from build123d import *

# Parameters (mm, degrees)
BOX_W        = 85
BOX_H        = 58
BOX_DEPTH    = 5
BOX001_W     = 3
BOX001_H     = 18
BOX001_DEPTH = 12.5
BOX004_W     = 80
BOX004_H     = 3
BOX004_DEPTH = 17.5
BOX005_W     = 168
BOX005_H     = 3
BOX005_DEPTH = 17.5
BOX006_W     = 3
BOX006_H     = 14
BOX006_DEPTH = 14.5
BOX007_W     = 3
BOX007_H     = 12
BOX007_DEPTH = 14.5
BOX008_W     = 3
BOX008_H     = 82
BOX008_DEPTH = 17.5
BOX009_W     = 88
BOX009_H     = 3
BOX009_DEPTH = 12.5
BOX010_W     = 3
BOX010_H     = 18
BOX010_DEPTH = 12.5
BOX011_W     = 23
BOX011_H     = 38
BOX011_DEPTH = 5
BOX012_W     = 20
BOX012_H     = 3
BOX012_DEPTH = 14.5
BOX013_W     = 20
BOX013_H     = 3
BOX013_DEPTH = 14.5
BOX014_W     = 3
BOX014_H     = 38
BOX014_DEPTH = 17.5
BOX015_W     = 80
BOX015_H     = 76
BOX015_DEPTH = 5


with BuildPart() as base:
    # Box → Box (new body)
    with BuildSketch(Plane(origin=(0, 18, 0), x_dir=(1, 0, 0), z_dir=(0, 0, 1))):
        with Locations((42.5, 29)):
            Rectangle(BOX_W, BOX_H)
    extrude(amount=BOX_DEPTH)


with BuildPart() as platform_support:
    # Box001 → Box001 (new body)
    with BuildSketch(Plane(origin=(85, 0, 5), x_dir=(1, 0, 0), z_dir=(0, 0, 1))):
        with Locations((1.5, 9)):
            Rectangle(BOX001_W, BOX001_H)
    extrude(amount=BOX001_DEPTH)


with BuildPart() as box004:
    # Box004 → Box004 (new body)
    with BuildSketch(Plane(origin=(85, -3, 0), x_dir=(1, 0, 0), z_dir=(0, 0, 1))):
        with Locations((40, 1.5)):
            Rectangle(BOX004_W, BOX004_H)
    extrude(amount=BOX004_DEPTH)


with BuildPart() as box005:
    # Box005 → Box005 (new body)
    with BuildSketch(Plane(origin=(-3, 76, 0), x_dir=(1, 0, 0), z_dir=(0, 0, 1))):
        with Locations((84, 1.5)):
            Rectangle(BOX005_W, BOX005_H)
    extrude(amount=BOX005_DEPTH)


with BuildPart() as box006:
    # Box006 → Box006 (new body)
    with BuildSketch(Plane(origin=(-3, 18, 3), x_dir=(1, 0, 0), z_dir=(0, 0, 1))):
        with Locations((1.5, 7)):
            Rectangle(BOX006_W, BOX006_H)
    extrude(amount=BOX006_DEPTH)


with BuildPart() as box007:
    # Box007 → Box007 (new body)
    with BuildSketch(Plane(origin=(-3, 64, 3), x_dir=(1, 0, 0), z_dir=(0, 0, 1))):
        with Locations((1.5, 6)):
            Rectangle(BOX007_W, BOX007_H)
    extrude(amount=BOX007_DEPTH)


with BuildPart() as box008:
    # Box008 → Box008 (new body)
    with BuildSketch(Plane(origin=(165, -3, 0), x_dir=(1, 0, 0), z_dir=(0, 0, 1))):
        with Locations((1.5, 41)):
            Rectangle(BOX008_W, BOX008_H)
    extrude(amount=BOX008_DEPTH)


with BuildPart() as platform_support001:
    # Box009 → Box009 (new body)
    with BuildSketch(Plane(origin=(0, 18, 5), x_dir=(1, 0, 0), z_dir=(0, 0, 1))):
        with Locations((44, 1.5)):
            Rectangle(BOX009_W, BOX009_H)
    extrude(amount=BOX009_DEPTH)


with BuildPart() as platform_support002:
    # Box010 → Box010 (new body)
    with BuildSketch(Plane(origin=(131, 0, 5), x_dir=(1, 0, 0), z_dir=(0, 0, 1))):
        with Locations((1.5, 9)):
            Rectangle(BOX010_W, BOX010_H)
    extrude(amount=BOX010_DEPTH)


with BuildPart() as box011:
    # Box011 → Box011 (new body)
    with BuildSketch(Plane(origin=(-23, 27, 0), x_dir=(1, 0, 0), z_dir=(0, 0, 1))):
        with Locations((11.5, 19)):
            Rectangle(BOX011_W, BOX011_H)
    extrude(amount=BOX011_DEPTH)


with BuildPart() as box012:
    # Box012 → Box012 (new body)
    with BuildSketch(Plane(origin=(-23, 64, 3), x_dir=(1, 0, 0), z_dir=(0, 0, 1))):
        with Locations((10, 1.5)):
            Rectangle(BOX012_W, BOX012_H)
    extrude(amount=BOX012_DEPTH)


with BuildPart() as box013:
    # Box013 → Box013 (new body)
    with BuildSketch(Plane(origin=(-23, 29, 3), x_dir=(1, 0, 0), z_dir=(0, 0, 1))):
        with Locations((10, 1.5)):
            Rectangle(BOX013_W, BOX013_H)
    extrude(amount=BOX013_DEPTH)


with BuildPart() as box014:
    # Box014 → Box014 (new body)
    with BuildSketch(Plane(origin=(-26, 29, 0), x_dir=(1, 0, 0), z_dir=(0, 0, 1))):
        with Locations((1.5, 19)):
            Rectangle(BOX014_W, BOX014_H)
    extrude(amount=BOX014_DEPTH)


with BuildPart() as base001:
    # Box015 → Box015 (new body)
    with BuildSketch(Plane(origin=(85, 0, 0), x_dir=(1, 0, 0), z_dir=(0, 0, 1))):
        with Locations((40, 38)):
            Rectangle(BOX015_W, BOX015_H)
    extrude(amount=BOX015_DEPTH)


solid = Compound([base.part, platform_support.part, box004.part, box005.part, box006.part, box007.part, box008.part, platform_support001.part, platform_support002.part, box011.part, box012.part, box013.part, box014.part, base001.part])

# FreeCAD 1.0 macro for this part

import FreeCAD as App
import Part
import Sketcher
Q = App.Units.Quantity


def add_polygon(sketch, points):
    """Adds a closed chain of lines whose ends are joined by coincident constraints."""
    first, n = sketch.GeometryCount, len(points)
    for a, b in zip(points, points[1:] + points[:1]):
        sketch.addGeometry(Part.LineSegment(App.Vector(*a, 0), App.Vector(*b, 0)), False)
    for i in range(n):
        sketch.addConstraint(Sketcher.Constraint("Coincident", first + i, 2, first + (i + 1) % n, 1))

doc = App.newDocument("Part")
params = doc.addObject("Spreadsheet::Sheet", "Params")
for row, (alias, value) in enumerate([
    ("sketch1_width", "85 mm"),
    ("sketch1_height", "58 mm"),
    ("pad1_length", "5 mm"),
    ("sketch2_width", "3 mm"),
    ("sketch2_height", "18 mm"),
    ("pad2_length", "12.5 mm"),
    ("sketch3_width", "80 mm"),
    ("sketch3_height", "3 mm"),
    ("pad3_length", "17.5 mm"),
    ("sketch4_width", "168 mm"),
    ("sketch4_height", "3 mm"),
    ("pad4_length", "17.5 mm"),
    ("sketch5_width", "3 mm"),
    ("sketch5_height", "14 mm"),
    ("pad5_length", "14.5 mm"),
    ("sketch6_width", "3 mm"),
    ("sketch6_height", "12 mm"),
    ("pad6_length", "14.5 mm"),
    ("sketch7_width", "3 mm"),
    ("sketch7_height", "82 mm"),
    ("pad7_length", "17.5 mm"),
    ("sketch8_width", "88 mm"),
    ("sketch8_height", "3 mm"),
    ("pad8_length", "12.5 mm"),
    ("sketch9_width", "3 mm"),
    ("sketch9_height", "18 mm"),
    ("pad9_length", "12.5 mm"),
    ("sketch10_width", "23 mm"),
    ("sketch10_height", "38 mm"),
    ("pad10_length", "5 mm"),
    ("sketch11_width", "20 mm"),
    ("sketch11_height", "3 mm"),
    ("pad11_length", "14.5 mm"),
    ("sketch12_width", "20 mm"),
    ("sketch12_height", "3 mm"),
    ("pad12_length", "14.5 mm"),
    ("sketch13_width", "3 mm"),
    ("sketch13_height", "38 mm"),
    ("pad13_length", "17.5 mm"),
    ("sketch14_width", "80 mm"),
    ("sketch14_height", "76 mm"),
    ("pad14_length", "5 mm"),
], start=1):
    params.set(f"A{row}", alias)
    params.set(f"B{row}", "=" + value)
    params.setAlias(f"B{row}", alias)

body = doc.addObject("PartDesign::Body", "Body")

sketch1 = doc.addObject("Sketcher::SketchObject", "Sketch")
body.addObject(sketch1)
sketch1.AttachmentSupport = (doc.XY_Plane, [""])
sketch1.MapMode = "FlatFace"
add_polygon(sketch1, [(0, 76), (0, 18), (85, 18), (85, 76)])
sketch1.addConstraint([
    Sketcher.Constraint("Vertical", 0),
    Sketcher.Constraint("Horizontal", 1),
    Sketcher.Constraint("Vertical", 2),
    Sketcher.Constraint("Horizontal", 3),
    Sketcher.Constraint("PointOnObject", 0, 2, -2),
    Sketcher.Constraint("DistanceX", 1, 1, 1, 2, Q("85 mm")),
    Sketcher.Constraint("DistanceY", 0, 2, 0, 1, Q("58 mm")),
    Sketcher.Constraint("DistanceY", -1, 1, 0, 2, Q("18 mm")),
])
sketch1.setExpression("Constraints[9]", "Params.sketch1_width")
sketch1.setExpression("Constraints[10]", "Params.sketch1_height")
pad1 = doc.addObject("PartDesign::Pad", "Pad")
body.addObject(pad1)
pad1.Profile = sketch1
pad1.setExpression("Length", "Params.pad1_length")
body2 = doc.addObject("PartDesign::Body", "Body001")

sketch2 = doc.addObject("Sketcher::SketchObject", "Sketch001")
body2.addObject(sketch2)
sketch2.AttachmentSupport = (doc.getObject("XY_Plane001"), [""])
sketch2.MapMode = "FlatFace"
sketch2.AttachmentOffset = App.Placement(App.Vector(0, 0, 5), App.Rotation())
add_polygon(sketch2, [(85, 18), (85, 0), (88, 0), (88, 18)])
sketch2.addConstraint([
    Sketcher.Constraint("Vertical", 0),
    Sketcher.Constraint("Horizontal", 1),
    Sketcher.Constraint("Vertical", 2),
    Sketcher.Constraint("Horizontal", 3),
    Sketcher.Constraint("PointOnObject", 0, 2, -1),
    Sketcher.Constraint("DistanceX", 1, 1, 1, 2, Q("3 mm")),
    Sketcher.Constraint("DistanceY", 0, 2, 0, 1, Q("18 mm")),
    Sketcher.Constraint("DistanceX", -1, 1, 0, 2, Q("85 mm")),
])
sketch2.setExpression("Constraints[9]", "Params.sketch2_width")
sketch2.setExpression("Constraints[10]", "Params.sketch2_height")
pad2 = doc.addObject("PartDesign::Pad", "Pad001")
body2.addObject(pad2)
pad2.Profile = sketch2
pad2.setExpression("Length", "Params.pad2_length")
body3 = doc.addObject("PartDesign::Body", "Body002")

sketch3 = doc.addObject("Sketcher::SketchObject", "Sketch002")
body3.addObject(sketch3)
sketch3.AttachmentSupport = (doc.getObject("XY_Plane002"), [""])
sketch3.MapMode = "FlatFace"
add_polygon(sketch3, [(85, 0), (85, -3), (165, -3), (165, 0)])
sketch3.addConstraint([
    Sketcher.Constraint("Vertical", 0),
    Sketcher.Constraint("Horizontal", 1),
    Sketcher.Constraint("Vertical", 2),
    Sketcher.Constraint("Horizontal", 3),
    Sketcher.Constraint("PointOnObject", 2, 2, -1),
    Sketcher.Constraint("DistanceX", 1, 1, 1, 2, Q("80 mm")),
    Sketcher.Constraint("DistanceY", 0, 2, 0, 1, Q("3 mm")),
    Sketcher.Constraint("DistanceX", -1, 1, 0, 2, Q("85 mm")),
])
sketch3.setExpression("Constraints[9]", "Params.sketch3_width")
sketch3.setExpression("Constraints[10]", "Params.sketch3_height")
pad3 = doc.addObject("PartDesign::Pad", "Pad002")
body3.addObject(pad3)
pad3.Profile = sketch3
pad3.setExpression("Length", "Params.pad3_length")
body4 = doc.addObject("PartDesign::Body", "Body003")

sketch4 = doc.addObject("Sketcher::SketchObject", "Sketch003")
body4.addObject(sketch4)
sketch4.AttachmentSupport = (doc.getObject("XY_Plane003"), [""])
sketch4.MapMode = "FlatFace"
add_polygon(sketch4, [(-3, 79), (-3, 76), (165, 76), (165, 79)])
sketch4.addConstraint([
    Sketcher.Constraint("Vertical", 0),
    Sketcher.Constraint("Horizontal", 1),
    Sketcher.Constraint("Vertical", 2),
    Sketcher.Constraint("Horizontal", 3),
    Sketcher.Constraint("DistanceX", 1, 1, 1, 2, Q("168 mm")),
    Sketcher.Constraint("DistanceY", 0, 2, 0, 1, Q("3 mm")),
    Sketcher.Constraint("DistanceX", 0, 2, -1, 1, Q("3 mm")),
    Sketcher.Constraint("DistanceY", -1, 1, 0, 2, Q("76 mm")),
])
sketch4.setExpression("Constraints[8]", "Params.sketch4_width")
sketch4.setExpression("Constraints[9]", "Params.sketch4_height")
pad4 = doc.addObject("PartDesign::Pad", "Pad003")
body4.addObject(pad4)
pad4.Profile = sketch4
pad4.setExpression("Length", "Params.pad4_length")
body5 = doc.addObject("PartDesign::Body", "Body004")

sketch5 = doc.addObject("Sketcher::SketchObject", "Sketch004")
body5.addObject(sketch5)
sketch5.AttachmentSupport = (doc.getObject("XY_Plane004"), [""])
sketch5.MapMode = "FlatFace"
sketch5.AttachmentOffset = App.Placement(App.Vector(0, 0, 3), App.Rotation())
add_polygon(sketch5, [(-3, 32), (-3, 18), (0, 18), (0, 32)])
sketch5.addConstraint([
    Sketcher.Constraint("Vertical", 0),
    Sketcher.Constraint("Horizontal", 1),
    Sketcher.Constraint("Vertical", 2),
    Sketcher.Constraint("Horizontal", 3),
    Sketcher.Constraint("PointOnObject", 1, 2, -2),
    Sketcher.Constraint("DistanceX", 1, 1, 1, 2, Q("3 mm")),
    Sketcher.Constraint("DistanceY", 0, 2, 0, 1, Q("14 mm")),
    Sketcher.Constraint("DistanceY", -1, 1, 0, 2, Q("18 mm")),
])
sketch5.setExpression("Constraints[9]", "Params.sketch5_width")
sketch5.setExpression("Constraints[10]", "Params.sketch5_height")
pad5 = doc.addObject("PartDesign::Pad", "Pad004")
body5.addObject(pad5)
pad5.Profile = sketch5
pad5.setExpression("Length", "Params.pad5_length")
body6 = doc.addObject("PartDesign::Body", "Body005")

sketch6 = doc.addObject("Sketcher::SketchObject", "Sketch005")
body6.addObject(sketch6)
sketch6.AttachmentSupport = (doc.getObject("XY_Plane005"), [""])
sketch6.MapMode = "FlatFace"
sketch6.AttachmentOffset = App.Placement(App.Vector(0, 0, 3), App.Rotation())
add_polygon(sketch6, [(-3, 76), (-3, 64), (0, 64), (0, 76)])
sketch6.addConstraint([
    Sketcher.Constraint("Vertical", 0),
    Sketcher.Constraint("Horizontal", 1),
    Sketcher.Constraint("Vertical", 2),
    Sketcher.Constraint("Horizontal", 3),
    Sketcher.Constraint("PointOnObject", 1, 2, -2),
    Sketcher.Constraint("DistanceX", 1, 1, 1, 2, Q("3 mm")),
    Sketcher.Constraint("DistanceY", 0, 2, 0, 1, Q("12 mm")),
    Sketcher.Constraint("DistanceY", -1, 1, 0, 2, Q("64 mm")),
])
sketch6.setExpression("Constraints[9]", "Params.sketch6_width")
sketch6.setExpression("Constraints[10]", "Params.sketch6_height")
pad6 = doc.addObject("PartDesign::Pad", "Pad005")
body6.addObject(pad6)
pad6.Profile = sketch6
pad6.setExpression("Length", "Params.pad6_length")
body7 = doc.addObject("PartDesign::Body", "Body006")

sketch7 = doc.addObject("Sketcher::SketchObject", "Sketch006")
body7.addObject(sketch7)
sketch7.AttachmentSupport = (doc.getObject("XY_Plane006"), [""])
sketch7.MapMode = "FlatFace"
add_polygon(sketch7, [(165, 79), (165, -3), (168, -3), (168, 79)])
sketch7.addConstraint([
    Sketcher.Constraint("Vertical", 0),
    Sketcher.Constraint("Horizontal", 1),
    Sketcher.Constraint("Vertical", 2),
    Sketcher.Constraint("Horizontal", 3),
    Sketcher.Constraint("DistanceX", 1, 1, 1, 2, Q("3 mm")),
    Sketcher.Constraint("DistanceY", 0, 2, 0, 1, Q("82 mm")),
    Sketcher.Constraint("DistanceX", -1, 1, 0, 2, Q("165 mm")),
    Sketcher.Constraint("DistanceY", 0, 2, -1, 1, Q("3 mm")),
])
sketch7.setExpression("Constraints[8]", "Params.sketch7_width")
sketch7.setExpression("Constraints[9]", "Params.sketch7_height")
pad7 = doc.addObject("PartDesign::Pad", "Pad006")
body7.addObject(pad7)
pad7.Profile = sketch7
pad7.setExpression("Length", "Params.pad7_length")
body8 = doc.addObject("PartDesign::Body", "Body007")

sketch8 = doc.addObject("Sketcher::SketchObject", "Sketch007")
body8.addObject(sketch8)
sketch8.AttachmentSupport = (doc.getObject("XY_Plane007"), [""])
sketch8.MapMode = "FlatFace"
sketch8.AttachmentOffset = App.Placement(App.Vector(0, 0, 5), App.Rotation())
add_polygon(sketch8, [(0, 21), (0, 18), (88, 18), (88, 21)])
sketch8.addConstraint([
    Sketcher.Constraint("Vertical", 0),
    Sketcher.Constraint("Horizontal", 1),
    Sketcher.Constraint("Vertical", 2),
    Sketcher.Constraint("Horizontal", 3),
    Sketcher.Constraint("PointOnObject", 0, 2, -2),
    Sketcher.Constraint("DistanceX", 1, 1, 1, 2, Q("88 mm")),
    Sketcher.Constraint("DistanceY", 0, 2, 0, 1, Q("3 mm")),
    Sketcher.Constraint("DistanceY", -1, 1, 0, 2, Q("18 mm")),
])
sketch8.setExpression("Constraints[9]", "Params.sketch8_width")
sketch8.setExpression("Constraints[10]", "Params.sketch8_height")
pad8 = doc.addObject("PartDesign::Pad", "Pad007")
body8.addObject(pad8)
pad8.Profile = sketch8
pad8.setExpression("Length", "Params.pad8_length")
body9 = doc.addObject("PartDesign::Body", "Body008")

sketch9 = doc.addObject("Sketcher::SketchObject", "Sketch008")
body9.addObject(sketch9)
sketch9.AttachmentSupport = (doc.getObject("XY_Plane008"), [""])
sketch9.MapMode = "FlatFace"
sketch9.AttachmentOffset = App.Placement(App.Vector(0, 0, 5), App.Rotation())
add_polygon(sketch9, [(131, 18), (131, 0), (134, 0), (134, 18)])
sketch9.addConstraint([
    Sketcher.Constraint("Vertical", 0),
    Sketcher.Constraint("Horizontal", 1),
    Sketcher.Constraint("Vertical", 2),
    Sketcher.Constraint("Horizontal", 3),
    Sketcher.Constraint("PointOnObject", 0, 2, -1),
    Sketcher.Constraint("DistanceX", 1, 1, 1, 2, Q("3 mm")),
    Sketcher.Constraint("DistanceY", 0, 2, 0, 1, Q("18 mm")),
    Sketcher.Constraint("DistanceX", -1, 1, 0, 2, Q("131 mm")),
])
sketch9.setExpression("Constraints[9]", "Params.sketch9_width")
sketch9.setExpression("Constraints[10]", "Params.sketch9_height")
pad9 = doc.addObject("PartDesign::Pad", "Pad008")
body9.addObject(pad9)
pad9.Profile = sketch9
pad9.setExpression("Length", "Params.pad9_length")
body10 = doc.addObject("PartDesign::Body", "Body009")

sketch10 = doc.addObject("Sketcher::SketchObject", "Sketch009")
body10.addObject(sketch10)
sketch10.AttachmentSupport = (doc.getObject("XY_Plane009"), [""])
sketch10.MapMode = "FlatFace"
add_polygon(sketch10, [(-23, 65), (-23, 27), (0, 27), (0, 65)])
sketch10.addConstraint([
    Sketcher.Constraint("Vertical", 0),
    Sketcher.Constraint("Horizontal", 1),
    Sketcher.Constraint("Vertical", 2),
    Sketcher.Constraint("Horizontal", 3),
    Sketcher.Constraint("PointOnObject", 1, 2, -2),
    Sketcher.Constraint("DistanceX", 1, 1, 1, 2, Q("23 mm")),
    Sketcher.Constraint("DistanceY", 0, 2, 0, 1, Q("38 mm")),
    Sketcher.Constraint("DistanceY", -1, 1, 0, 2, Q("27 mm")),
])
sketch10.setExpression("Constraints[9]", "Params.sketch10_width")
sketch10.setExpression("Constraints[10]", "Params.sketch10_height")
pad10 = doc.addObject("PartDesign::Pad", "Pad009")
body10.addObject(pad10)
pad10.Profile = sketch10
pad10.setExpression("Length", "Params.pad10_length")
body11 = doc.addObject("PartDesign::Body", "Body010")

sketch11 = doc.addObject("Sketcher::SketchObject", "Sketch010")
body11.addObject(sketch11)
sketch11.AttachmentSupport = (doc.getObject("XY_Plane010"), [""])
sketch11.MapMode = "FlatFace"
sketch11.AttachmentOffset = App.Placement(App.Vector(0, 0, 3), App.Rotation())
add_polygon(sketch11, [(-23, 67), (-23, 64), (-3, 64), (-3, 67)])
sketch11.addConstraint([
    Sketcher.Constraint("Vertical", 0),
    Sketcher.Constraint("Horizontal", 1),
    Sketcher.Constraint("Vertical", 2),
    Sketcher.Constraint("Horizontal", 3),
    Sketcher.Constraint("DistanceX", 1, 1, 1, 2, Q("20 mm")),
    Sketcher.Constraint("DistanceY", 0, 2, 0, 1, Q("3 mm")),
    Sketcher.Constraint("DistanceX", 0, 2, -1, 1, Q("23 mm")),
    Sketcher.Constraint("DistanceY", -1, 1, 0, 2, Q("64 mm")),
])
sketch11.setExpression("Constraints[8]", "Params.sketch11_width")
sketch11.setExpression("Constraints[9]", "Params.sketch11_height")
pad11 = doc.addObject("PartDesign::Pad", "Pad010")
body11.addObject(pad11)
pad11.Profile = sketch11
pad11.setExpression("Length", "Params.pad11_length")
body12 = doc.addObject("PartDesign::Body", "Body011")

sketch12 = doc.addObject("Sketcher::SketchObject", "Sketch011")
body12.addObject(sketch12)
sketch12.AttachmentSupport = (doc.getObject("XY_Plane011"), [""])
sketch12.MapMode = "FlatFace"
sketch12.AttachmentOffset = App.Placement(App.Vector(0, 0, 3), App.Rotation())
add_polygon(sketch12, [(-23, 32), (-23, 29), (-3, 29), (-3, 32)])
sketch12.addConstraint([
    Sketcher.Constraint("Vertical", 0),
    Sketcher.Constraint("Horizontal", 1),
    Sketcher.Constraint("Vertical", 2),
    Sketcher.Constraint("Horizontal", 3),
    Sketcher.Constraint("DistanceX", 1, 1, 1, 2, Q("20 mm")),
    Sketcher.Constraint("DistanceY", 0, 2, 0, 1, Q("3 mm")),
    Sketcher.Constraint("DistanceX", 0, 2, -1, 1, Q("23 mm")),
    Sketcher.Constraint("DistanceY", -1, 1, 0, 2, Q("29 mm")),
])
sketch12.setExpression("Constraints[8]", "Params.sketch12_width")
sketch12.setExpression("Constraints[9]", "Params.sketch12_height")
pad12 = doc.addObject("PartDesign::Pad", "Pad011")
body12.addObject(pad12)
pad12.Profile = sketch12
pad12.setExpression("Length", "Params.pad12_length")
body13 = doc.addObject("PartDesign::Body", "Body012")

sketch13 = doc.addObject("Sketcher::SketchObject", "Sketch012")
body13.addObject(sketch13)
sketch13.AttachmentSupport = (doc.getObject("XY_Plane012"), [""])
sketch13.MapMode = "FlatFace"
add_polygon(sketch13, [(-26, 67), (-26, 29), (-23, 29), (-23, 67)])
sketch13.addConstraint([
    Sketcher.Constraint("Vertical", 0),
    Sketcher.Constraint("Horizontal", 1),
    Sketcher.Constraint("Vertical", 2),
    Sketcher.Constraint("Horizontal", 3),
    Sketcher.Constraint("DistanceX", 1, 1, 1, 2, Q("3 mm")),
    Sketcher.Constraint("DistanceY", 0, 2, 0, 1, Q("38 mm")),
    Sketcher.Constraint("DistanceX", 0, 2, -1, 1, Q("26 mm")),
    Sketcher.Constraint("DistanceY", -1, 1, 0, 2, Q("29 mm")),
])
sketch13.setExpression("Constraints[8]", "Params.sketch13_width")
sketch13.setExpression("Constraints[9]", "Params.sketch13_height")
pad13 = doc.addObject("PartDesign::Pad", "Pad012")
body13.addObject(pad13)
pad13.Profile = sketch13
pad13.setExpression("Length", "Params.pad13_length")
body14 = doc.addObject("PartDesign::Body", "Body013")

sketch14 = doc.addObject("Sketcher::SketchObject", "Sketch013")
body14.addObject(sketch14)
sketch14.AttachmentSupport = (doc.getObject("XY_Plane013"), [""])
sketch14.MapMode = "FlatFace"
add_polygon(sketch14, [(85, 76), (85, 0), (165, 0), (165, 76)])
sketch14.addConstraint([
    Sketcher.Constraint("Vertical", 0),
    Sketcher.Constraint("Horizontal", 1),
    Sketcher.Constraint("Vertical", 2),
    Sketcher.Constraint("Horizontal", 3),
    Sketcher.Constraint("PointOnObject", 0, 2, -1),
    Sketcher.Constraint("DistanceX", 1, 1, 1, 2, Q("80 mm")),
    Sketcher.Constraint("DistanceY", 0, 2, 0, 1, Q("76 mm")),
    Sketcher.Constraint("DistanceX", -1, 1, 0, 2, Q("85 mm")),
])
sketch14.setExpression("Constraints[9]", "Params.sketch14_width")
sketch14.setExpression("Constraints[10]", "Params.sketch14_height")
pad14 = doc.addObject("PartDesign::Pad", "Pad013")
body14.addObject(pad14)
pad14.Profile = sketch14
pad14.setExpression("Length", "Params.pad14_length")

doc.recompute()
